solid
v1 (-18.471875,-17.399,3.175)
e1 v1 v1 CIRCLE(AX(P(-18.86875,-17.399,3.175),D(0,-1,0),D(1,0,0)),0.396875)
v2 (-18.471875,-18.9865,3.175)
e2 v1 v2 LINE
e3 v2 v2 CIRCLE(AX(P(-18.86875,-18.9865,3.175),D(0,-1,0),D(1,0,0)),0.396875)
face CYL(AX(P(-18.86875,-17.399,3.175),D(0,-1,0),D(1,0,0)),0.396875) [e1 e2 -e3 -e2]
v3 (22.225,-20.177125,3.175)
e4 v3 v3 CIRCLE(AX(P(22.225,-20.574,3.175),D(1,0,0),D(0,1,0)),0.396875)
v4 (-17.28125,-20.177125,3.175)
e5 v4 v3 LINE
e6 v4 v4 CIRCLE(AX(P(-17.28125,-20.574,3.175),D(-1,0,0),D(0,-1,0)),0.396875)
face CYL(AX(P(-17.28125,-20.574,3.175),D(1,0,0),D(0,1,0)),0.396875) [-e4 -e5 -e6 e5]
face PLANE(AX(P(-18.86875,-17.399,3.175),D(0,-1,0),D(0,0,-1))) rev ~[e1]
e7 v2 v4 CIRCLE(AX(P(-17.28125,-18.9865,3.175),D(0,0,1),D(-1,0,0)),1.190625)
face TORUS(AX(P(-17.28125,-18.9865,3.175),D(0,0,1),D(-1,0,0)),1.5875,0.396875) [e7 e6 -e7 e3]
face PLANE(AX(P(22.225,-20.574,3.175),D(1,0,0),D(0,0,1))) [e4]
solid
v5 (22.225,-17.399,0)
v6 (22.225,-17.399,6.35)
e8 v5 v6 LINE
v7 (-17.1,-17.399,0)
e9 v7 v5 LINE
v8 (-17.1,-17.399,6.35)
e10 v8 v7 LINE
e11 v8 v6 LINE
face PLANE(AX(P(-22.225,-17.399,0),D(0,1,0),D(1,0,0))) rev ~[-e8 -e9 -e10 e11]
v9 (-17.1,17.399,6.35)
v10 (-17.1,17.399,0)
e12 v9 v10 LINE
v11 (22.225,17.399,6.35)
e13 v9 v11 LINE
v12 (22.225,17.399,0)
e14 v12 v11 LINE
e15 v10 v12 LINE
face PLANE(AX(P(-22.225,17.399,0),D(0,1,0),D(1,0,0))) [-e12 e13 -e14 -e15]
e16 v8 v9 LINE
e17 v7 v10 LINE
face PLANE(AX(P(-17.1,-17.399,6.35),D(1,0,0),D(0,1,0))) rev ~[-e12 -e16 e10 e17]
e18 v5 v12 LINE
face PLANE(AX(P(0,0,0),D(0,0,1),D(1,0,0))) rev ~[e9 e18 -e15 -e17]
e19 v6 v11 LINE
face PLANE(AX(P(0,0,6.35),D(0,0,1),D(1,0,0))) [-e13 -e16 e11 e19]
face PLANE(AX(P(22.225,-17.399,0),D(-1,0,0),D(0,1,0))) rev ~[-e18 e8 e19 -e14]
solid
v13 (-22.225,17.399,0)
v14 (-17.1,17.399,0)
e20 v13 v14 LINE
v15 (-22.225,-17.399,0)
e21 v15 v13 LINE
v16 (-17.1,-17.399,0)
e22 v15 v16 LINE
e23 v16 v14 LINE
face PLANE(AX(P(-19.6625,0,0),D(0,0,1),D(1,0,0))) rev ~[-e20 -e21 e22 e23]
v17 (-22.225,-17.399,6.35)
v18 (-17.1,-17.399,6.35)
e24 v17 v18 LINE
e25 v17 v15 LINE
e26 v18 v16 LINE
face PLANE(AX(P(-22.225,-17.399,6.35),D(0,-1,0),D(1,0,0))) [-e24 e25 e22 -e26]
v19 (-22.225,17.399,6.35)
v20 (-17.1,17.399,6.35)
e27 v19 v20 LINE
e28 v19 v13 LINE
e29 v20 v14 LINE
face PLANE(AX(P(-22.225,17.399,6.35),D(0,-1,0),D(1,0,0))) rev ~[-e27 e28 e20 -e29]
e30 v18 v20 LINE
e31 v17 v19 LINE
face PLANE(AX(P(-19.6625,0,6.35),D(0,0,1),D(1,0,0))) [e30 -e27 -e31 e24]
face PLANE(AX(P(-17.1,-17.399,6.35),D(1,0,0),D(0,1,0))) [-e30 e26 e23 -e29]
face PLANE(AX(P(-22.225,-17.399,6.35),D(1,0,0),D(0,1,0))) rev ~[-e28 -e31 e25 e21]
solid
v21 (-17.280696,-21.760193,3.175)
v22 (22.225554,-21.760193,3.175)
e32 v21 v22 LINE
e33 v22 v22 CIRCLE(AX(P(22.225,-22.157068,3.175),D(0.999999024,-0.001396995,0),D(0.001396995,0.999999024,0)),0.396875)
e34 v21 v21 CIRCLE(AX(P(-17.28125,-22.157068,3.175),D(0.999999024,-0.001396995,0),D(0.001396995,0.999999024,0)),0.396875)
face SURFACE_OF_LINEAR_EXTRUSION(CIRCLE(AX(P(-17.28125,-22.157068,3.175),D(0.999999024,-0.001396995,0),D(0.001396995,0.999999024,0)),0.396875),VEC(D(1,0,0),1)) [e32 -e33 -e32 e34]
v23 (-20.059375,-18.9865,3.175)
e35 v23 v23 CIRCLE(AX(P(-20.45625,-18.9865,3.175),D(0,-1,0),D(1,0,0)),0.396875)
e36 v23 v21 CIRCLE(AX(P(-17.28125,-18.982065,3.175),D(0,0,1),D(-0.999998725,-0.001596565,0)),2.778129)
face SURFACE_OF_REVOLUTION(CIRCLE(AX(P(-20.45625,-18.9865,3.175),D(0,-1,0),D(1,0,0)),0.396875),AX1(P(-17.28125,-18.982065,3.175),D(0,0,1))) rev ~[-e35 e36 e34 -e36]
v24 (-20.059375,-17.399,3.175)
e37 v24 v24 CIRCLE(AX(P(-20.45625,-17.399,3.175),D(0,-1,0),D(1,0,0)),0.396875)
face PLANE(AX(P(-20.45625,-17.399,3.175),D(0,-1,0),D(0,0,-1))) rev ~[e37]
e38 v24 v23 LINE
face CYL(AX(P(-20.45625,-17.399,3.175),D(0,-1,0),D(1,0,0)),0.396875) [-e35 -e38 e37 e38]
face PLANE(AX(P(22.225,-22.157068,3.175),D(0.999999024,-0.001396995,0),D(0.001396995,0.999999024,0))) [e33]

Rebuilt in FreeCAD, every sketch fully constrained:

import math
import FreeCAD as App
import Part
import Sketcher
from FreeCAD import Vector
Q = App.Units.Quantity


def add_polygon(sketch, points):
    """Adds a closed chain of lines whose ends are joined by coincident constraints."""
    first, n = sketch.GeometryCount, len(points)
    for a, b in zip(points, points[1:] + points[:1]):
        sketch.addGeometry(Part.LineSegment(App.Vector(*a, 0), App.Vector(*b, 0)), False)
    for i in range(n):
        sketch.addConstraint(Sketcher.Constraint("Coincident", first + i, 2, first + (i + 1) % n, 1))

doc = App.newDocument("Part")
params = doc.addObject("Spreadsheet::Sheet", "Params")
for row, (alias, value) in enumerate([
    ("sketch1_width", "1.75 in"),
    ("sketch1_height", "1.37 in"),
    ("pad1_length", "0.25 in"),
    ("sketch2_height", "1.37 in"),
    ("sketch3_height", "1.37 in"),
    ("pad2_length", "0.25 in"),
    ("sketch4_diameter", "0.03125 in"),
    ("sketch5_radius", "0.0625 in"),
    ("sketch5_height", "0.0625 in"),
    ("sketch6_diameter", "0.03125 in"),
    ("sketch7_radius", "0.1250001 in"),
    ("sketch7_height", "0.0625 in"),
], start=1):
    params.set(f"A{row}", alias)
    params.set(f"B{row}", "=" + value)
    params.setAlias(f"B{row}", alias)

body = doc.addObject("PartDesign::Body", "Body")

# Sketch on XY plane
sketch1 = body.newObject("Sketcher::SketchObject", "Sketch")
sketch1.AttachmentSupport = (doc.getObject("XY_Plane"), [""])
sketch1.MapMode = "FlatFace"
add_polygon(sketch1, [(-22, 17), (-22, -17), (22, -17), (22, 17)])  # lines 0-3
sketch1.addConstraint(Sketcher.Constraint("Vertical", 0))
sketch1.addConstraint(Sketcher.Constraint("Horizontal", 1))
sketch1.addConstraint(Sketcher.Constraint("Vertical", 2))
sketch1.addConstraint(Sketcher.Constraint("Horizontal", 3))
sketch1.addConstraint(Sketcher.Constraint("Symmetric", 0, 2, 2, 2, -1, 1))
sketch1.addConstraint(Sketcher.Constraint("DistanceX", 1, 1, 1, 2, Q("1.75 in")))
sketch1.addConstraint(Sketcher.Constraint("DistanceY", 0, 2, 0, 1, Q("1.37 in")))
sketch1.setExpression("Constraints[9]", "Params.sketch1_width")
sketch1.setExpression("Constraints[10]", "Params.sketch1_height")
pad1 = body.newObject("PartDesign::Pad", "Pad")
pad1.Profile = sketch1
pad1.setExpression("Length", "Params.pad1_length")

# Sketch on XY plane
sketch2 = body.newObject("Sketcher::SketchObject", "Sketch001")
sketch2.AttachmentSupport = (doc.getObject("XY_Plane"), [""])
sketch2.MapMode = "FlatFace"
sketch2.AttachmentOffset = App.Placement(Vector(0, 0, 0.25 * 25.4), App.Rotation())
add_polygon(sketch2, [(-22, 17), (-22, -17), (-17, -17), (-17, 17)])  # lines 0-3
sketch2.addConstraint(Sketcher.Constraint("Vertical", 0))
sketch2.addConstraint(Sketcher.Constraint("Horizontal", 1))
sketch2.addConstraint(Sketcher.Constraint("Vertical", 2))
sketch2.addConstraint(Sketcher.Constraint("Horizontal", 3))
sketch2.addConstraint(Sketcher.Constraint("DistanceY", 0, 2, 0, 1, Q("1.37 in")))
sketch2.addConstraint(Sketcher.Constraint("DistanceX", 0, 2, -1, 1, Q("0.875 in")))
sketch2.addConstraint(Sketcher.Constraint("DistanceY", 0, 2, -1, 1, Q("0.685 in")))
sketch2.addConstraint(Sketcher.Constraint("DistanceX", 1, 1, 1, 2, Q("5.125 mm")))
sketch2.setExpression("Constraints[8]", "Params.sketch2_height")
pocket1 = body.newObject("PartDesign::Pocket", "Pocket")
pocket1.Profile = sketch2
pocket1.Type = "ThroughAll"
body2 = doc.addObject("PartDesign::Body", "Body001")

# Sketch on XY plane
sketch3 = body2.newObject("Sketcher::SketchObject", "Sketch002")
sketch3.AttachmentSupport = (doc.getObject("XY_Plane001"), [""])
sketch3.MapMode = "FlatFace"
sketch3.AttachmentOffset = App.Placement(Vector(0, 0, 0.25 * 25.4), App.Rotation())
add_polygon(sketch3, [(-22, 17), (-22, -17), (-17, -17), (-17, 17)])  # lines 0-3
sketch3.addConstraint(Sketcher.Constraint("Vertical", 0))
sketch3.addConstraint(Sketcher.Constraint("Horizontal", 1))
sketch3.addConstraint(Sketcher.Constraint("Vertical", 2))
sketch3.addConstraint(Sketcher.Constraint("Horizontal", 3))
sketch3.addConstraint(Sketcher.Constraint("DistanceY", 0, 2, 0, 1, Q("1.37 in")))
sketch3.addConstraint(Sketcher.Constraint("DistanceX", 0, 2, -1, 1, Q("0.875 in")))
sketch3.addConstraint(Sketcher.Constraint("DistanceY", 0, 2, -1, 1, Q("0.685 in")))
sketch3.addConstraint(Sketcher.Constraint("DistanceX", 1, 1, 1, 2, Q("5.125 mm")))
sketch3.setExpression("Constraints[8]", "Params.sketch3_height")
pad2 = body2.newObject("PartDesign::Pad", "Pad001")
pad2.Profile = sketch3
pad2.setExpression("Length", "Params.pad2_length")
pad2.Reversed = True
body3 = doc.addObject("PartDesign::Body", "Body002")

# Sketch on XZ plane
sketch4 = body3.newObject("Sketcher::SketchObject", "Sketch003")
sketch4.AttachmentSupport = (doc.getObject("XZ_Plane002"), [""])
sketch4.MapMode = "FlatFace"
sketch4.AttachmentOffset = App.Placement(Vector(0, 0, 0.685 * 25.4), App.Rotation())
sketch4.addGeometry(Part.Circle(Vector(-18.87, 3.17, 0), Vector(0, 0, 1), 0.4), False)
sketch4.addConstraint(Sketcher.Constraint("Diameter", 0, Q("0.03125 in")))
sketch4.addConstraint(Sketcher.Constraint("DistanceY", -1, 1, 0, 3, Q("0.125 in")))
sketch4.addConstraint(Sketcher.Constraint("DistanceX", 0, 3, -1, 1, Q("18.86875 mm")))
sketch4.setExpression("Constraints[0]", "Params.sketch4_diameter")

# Sketch on XY plane
sketch5 = body3.newObject("Sketcher::SketchObject", "Sketch004")
sketch5.AttachmentSupport = (doc.getObject("XY_Plane002"), [""])
sketch5.MapMode = "FlatFace"
sketch5.AttachmentOffset = App.Placement(Vector(0, 0, 0.125 * 25.4), App.Rotation())
sketch5.addGeometry(Part.LineSegment(Vector(-18.9, -17.4, 0), Vector(-18.9, -19, 0)), False)
sketch5.addGeometry(Part.ArcOfCircle(Part.Circle(Vector(-17.3, -19, 0), Vector(0, 0, 1), 1.6), math.radians(180), math.radians(270)), False)
sketch5.addGeometry(Part.LineSegment(Vector(-17.3, -20.6, 0), Vector(22.2, -20.6, 0)), False)
sketch5.addConstraint(Sketcher.Constraint("Tangent", 0, 2, 1, 1))
sketch5.addConstraint(Sketcher.Constraint("Tangent", 1, 2, 2, 1))
sketch5.addConstraint(Sketcher.Constraint("Vertical", 0))
sketch5.addConstraint(Sketcher.Constraint("Horizontal", 2))
sketch5.addConstraint(Sketcher.Constraint("Radius", 1, Q("0.0625 in")))
sketch5.addConstraint(Sketcher.Constraint("DistanceY", 0, 2, 0, 1, Q("0.0625 in")))
sketch5.addConstraint(Sketcher.Constraint("DistanceY", 1, 2, -1, 1, Q("0.81 in")))
sketch5.addConstraint(Sketcher.Constraint("DistanceX", -1, 1, 2, 2, Q("0.875 in")))
sketch5.addConstraint(Sketcher.Constraint("DistanceX", 2, 1, 2, 2, Q("39.50625 mm")))
sketch5.setExpression("Constraints[4]", "Params.sketch5_radius")
sketch5.setExpression("Constraints[5]", "Params.sketch5_height")
doc.recompute()

additivepipe = body3.newObject("PartDesign::AdditivePipe", "AdditivePipe")
additivepipe.Profile = sketch4
additivepipe.Spine = (sketch5, ["Edge1", "Edge2", "Edge3"])
body4 = doc.addObject("PartDesign::Body", "Body003")

# Sketch on XZ plane
sketch6 = body4.newObject("Sketcher::SketchObject", "Sketch005")
sketch6.AttachmentSupport = (doc.getObject("XZ_Plane003"), [""])
sketch6.MapMode = "FlatFace"
sketch6.AttachmentOffset = App.Placement(Vector(0, 0, 0.685 * 25.4), App.Rotation())
sketch6.addGeometry(Part.Circle(Vector(-20.46, 3.17, 0), Vector(0, 0, 1), 0.4), False)
sketch6.addConstraint(Sketcher.Constraint("Diameter", 0, Q("0.03125 in")))
sketch6.addConstraint(Sketcher.Constraint("DistanceY", -1, 1, 0, 3, Q("0.125 in")))
sketch6.addConstraint(Sketcher.Constraint("DistanceX", 0, 3, -1, 1, Q("20.45625 mm")))
sketch6.setExpression("Constraints[0]", "Params.sketch6_diameter")

# Sketch on XY plane
sketch7 = body4.newObject("Sketcher::SketchObject", "Sketch006")
sketch7.AttachmentSupport = (doc.getObject("XY_Plane003"), [""])
sketch7.MapMode = "FlatFace"
sketch7.AttachmentOffset = App.Placement(Vector(0, 0, 0.125 * 25.4), App.Rotation())
sketch7.addGeometry(Part.LineSegment(Vector(-20.5, -17.4, 0), Vector(-20.5, -19, 0)), False)
sketch7.addGeometry(Part.ArcOfCircle(Part.Circle(Vector(-17.3, -19, 0), Vector(0, 0, 1), 3.2), math.radians(-180), math.radians(-90)), False)
sketch7.addGeometry(Part.LineSegment(Vector(-17.3, -22.2, 0), Vector(22.2, -22.2, 0)), False)
sketch7.addConstraint(Sketcher.Constraint("Coincident", 0, 2, 1, 1))
sketch7.addConstraint(Sketcher.Constraint("Tangent", 1, 2, 2, 1))
sketch7.addConstraint(Sketcher.Constraint("Vertical", 0))
sketch7.addConstraint(Sketcher.Constraint("Horizontal", 2))
sketch7.addConstraint(Sketcher.Constraint("Radius", 1, Q("0.1250001 in")))
sketch7.addConstraint(Sketcher.Constraint("DistanceY", 0, 2, 0, 1, Q("0.0625 in")))
sketch7.addConstraint(Sketcher.Constraint("DistanceY", 0, 1, -1, 1, Q("0.685 in")))
sketch7.addConstraint(Sketcher.Constraint("DistanceX", -1, 1, 2, 2, Q("0.875 in")))
sketch7.addConstraint(Sketcher.Constraint("DistanceX", 2, 1, 2, 2, Q("39.50625 mm")))
sketch7.addConstraint(Sketcher.Constraint("DistanceY", 1, 3, -1, 1, Q("18.982065 mm")))
sketch7.setExpression("Constraints[4]", "Params.sketch7_radius")
sketch7.setExpression("Constraints[5]", "Params.sketch7_height")
doc.recompute()

additivepipe2 = body4.newObject("PartDesign::AdditivePipe", "AdditivePipe001")
additivepipe2.Profile = sketch6
additivepipe2.Spine = (sketch7, ["Edge1", "Edge2", "Edge3"])

doc.recompute()
